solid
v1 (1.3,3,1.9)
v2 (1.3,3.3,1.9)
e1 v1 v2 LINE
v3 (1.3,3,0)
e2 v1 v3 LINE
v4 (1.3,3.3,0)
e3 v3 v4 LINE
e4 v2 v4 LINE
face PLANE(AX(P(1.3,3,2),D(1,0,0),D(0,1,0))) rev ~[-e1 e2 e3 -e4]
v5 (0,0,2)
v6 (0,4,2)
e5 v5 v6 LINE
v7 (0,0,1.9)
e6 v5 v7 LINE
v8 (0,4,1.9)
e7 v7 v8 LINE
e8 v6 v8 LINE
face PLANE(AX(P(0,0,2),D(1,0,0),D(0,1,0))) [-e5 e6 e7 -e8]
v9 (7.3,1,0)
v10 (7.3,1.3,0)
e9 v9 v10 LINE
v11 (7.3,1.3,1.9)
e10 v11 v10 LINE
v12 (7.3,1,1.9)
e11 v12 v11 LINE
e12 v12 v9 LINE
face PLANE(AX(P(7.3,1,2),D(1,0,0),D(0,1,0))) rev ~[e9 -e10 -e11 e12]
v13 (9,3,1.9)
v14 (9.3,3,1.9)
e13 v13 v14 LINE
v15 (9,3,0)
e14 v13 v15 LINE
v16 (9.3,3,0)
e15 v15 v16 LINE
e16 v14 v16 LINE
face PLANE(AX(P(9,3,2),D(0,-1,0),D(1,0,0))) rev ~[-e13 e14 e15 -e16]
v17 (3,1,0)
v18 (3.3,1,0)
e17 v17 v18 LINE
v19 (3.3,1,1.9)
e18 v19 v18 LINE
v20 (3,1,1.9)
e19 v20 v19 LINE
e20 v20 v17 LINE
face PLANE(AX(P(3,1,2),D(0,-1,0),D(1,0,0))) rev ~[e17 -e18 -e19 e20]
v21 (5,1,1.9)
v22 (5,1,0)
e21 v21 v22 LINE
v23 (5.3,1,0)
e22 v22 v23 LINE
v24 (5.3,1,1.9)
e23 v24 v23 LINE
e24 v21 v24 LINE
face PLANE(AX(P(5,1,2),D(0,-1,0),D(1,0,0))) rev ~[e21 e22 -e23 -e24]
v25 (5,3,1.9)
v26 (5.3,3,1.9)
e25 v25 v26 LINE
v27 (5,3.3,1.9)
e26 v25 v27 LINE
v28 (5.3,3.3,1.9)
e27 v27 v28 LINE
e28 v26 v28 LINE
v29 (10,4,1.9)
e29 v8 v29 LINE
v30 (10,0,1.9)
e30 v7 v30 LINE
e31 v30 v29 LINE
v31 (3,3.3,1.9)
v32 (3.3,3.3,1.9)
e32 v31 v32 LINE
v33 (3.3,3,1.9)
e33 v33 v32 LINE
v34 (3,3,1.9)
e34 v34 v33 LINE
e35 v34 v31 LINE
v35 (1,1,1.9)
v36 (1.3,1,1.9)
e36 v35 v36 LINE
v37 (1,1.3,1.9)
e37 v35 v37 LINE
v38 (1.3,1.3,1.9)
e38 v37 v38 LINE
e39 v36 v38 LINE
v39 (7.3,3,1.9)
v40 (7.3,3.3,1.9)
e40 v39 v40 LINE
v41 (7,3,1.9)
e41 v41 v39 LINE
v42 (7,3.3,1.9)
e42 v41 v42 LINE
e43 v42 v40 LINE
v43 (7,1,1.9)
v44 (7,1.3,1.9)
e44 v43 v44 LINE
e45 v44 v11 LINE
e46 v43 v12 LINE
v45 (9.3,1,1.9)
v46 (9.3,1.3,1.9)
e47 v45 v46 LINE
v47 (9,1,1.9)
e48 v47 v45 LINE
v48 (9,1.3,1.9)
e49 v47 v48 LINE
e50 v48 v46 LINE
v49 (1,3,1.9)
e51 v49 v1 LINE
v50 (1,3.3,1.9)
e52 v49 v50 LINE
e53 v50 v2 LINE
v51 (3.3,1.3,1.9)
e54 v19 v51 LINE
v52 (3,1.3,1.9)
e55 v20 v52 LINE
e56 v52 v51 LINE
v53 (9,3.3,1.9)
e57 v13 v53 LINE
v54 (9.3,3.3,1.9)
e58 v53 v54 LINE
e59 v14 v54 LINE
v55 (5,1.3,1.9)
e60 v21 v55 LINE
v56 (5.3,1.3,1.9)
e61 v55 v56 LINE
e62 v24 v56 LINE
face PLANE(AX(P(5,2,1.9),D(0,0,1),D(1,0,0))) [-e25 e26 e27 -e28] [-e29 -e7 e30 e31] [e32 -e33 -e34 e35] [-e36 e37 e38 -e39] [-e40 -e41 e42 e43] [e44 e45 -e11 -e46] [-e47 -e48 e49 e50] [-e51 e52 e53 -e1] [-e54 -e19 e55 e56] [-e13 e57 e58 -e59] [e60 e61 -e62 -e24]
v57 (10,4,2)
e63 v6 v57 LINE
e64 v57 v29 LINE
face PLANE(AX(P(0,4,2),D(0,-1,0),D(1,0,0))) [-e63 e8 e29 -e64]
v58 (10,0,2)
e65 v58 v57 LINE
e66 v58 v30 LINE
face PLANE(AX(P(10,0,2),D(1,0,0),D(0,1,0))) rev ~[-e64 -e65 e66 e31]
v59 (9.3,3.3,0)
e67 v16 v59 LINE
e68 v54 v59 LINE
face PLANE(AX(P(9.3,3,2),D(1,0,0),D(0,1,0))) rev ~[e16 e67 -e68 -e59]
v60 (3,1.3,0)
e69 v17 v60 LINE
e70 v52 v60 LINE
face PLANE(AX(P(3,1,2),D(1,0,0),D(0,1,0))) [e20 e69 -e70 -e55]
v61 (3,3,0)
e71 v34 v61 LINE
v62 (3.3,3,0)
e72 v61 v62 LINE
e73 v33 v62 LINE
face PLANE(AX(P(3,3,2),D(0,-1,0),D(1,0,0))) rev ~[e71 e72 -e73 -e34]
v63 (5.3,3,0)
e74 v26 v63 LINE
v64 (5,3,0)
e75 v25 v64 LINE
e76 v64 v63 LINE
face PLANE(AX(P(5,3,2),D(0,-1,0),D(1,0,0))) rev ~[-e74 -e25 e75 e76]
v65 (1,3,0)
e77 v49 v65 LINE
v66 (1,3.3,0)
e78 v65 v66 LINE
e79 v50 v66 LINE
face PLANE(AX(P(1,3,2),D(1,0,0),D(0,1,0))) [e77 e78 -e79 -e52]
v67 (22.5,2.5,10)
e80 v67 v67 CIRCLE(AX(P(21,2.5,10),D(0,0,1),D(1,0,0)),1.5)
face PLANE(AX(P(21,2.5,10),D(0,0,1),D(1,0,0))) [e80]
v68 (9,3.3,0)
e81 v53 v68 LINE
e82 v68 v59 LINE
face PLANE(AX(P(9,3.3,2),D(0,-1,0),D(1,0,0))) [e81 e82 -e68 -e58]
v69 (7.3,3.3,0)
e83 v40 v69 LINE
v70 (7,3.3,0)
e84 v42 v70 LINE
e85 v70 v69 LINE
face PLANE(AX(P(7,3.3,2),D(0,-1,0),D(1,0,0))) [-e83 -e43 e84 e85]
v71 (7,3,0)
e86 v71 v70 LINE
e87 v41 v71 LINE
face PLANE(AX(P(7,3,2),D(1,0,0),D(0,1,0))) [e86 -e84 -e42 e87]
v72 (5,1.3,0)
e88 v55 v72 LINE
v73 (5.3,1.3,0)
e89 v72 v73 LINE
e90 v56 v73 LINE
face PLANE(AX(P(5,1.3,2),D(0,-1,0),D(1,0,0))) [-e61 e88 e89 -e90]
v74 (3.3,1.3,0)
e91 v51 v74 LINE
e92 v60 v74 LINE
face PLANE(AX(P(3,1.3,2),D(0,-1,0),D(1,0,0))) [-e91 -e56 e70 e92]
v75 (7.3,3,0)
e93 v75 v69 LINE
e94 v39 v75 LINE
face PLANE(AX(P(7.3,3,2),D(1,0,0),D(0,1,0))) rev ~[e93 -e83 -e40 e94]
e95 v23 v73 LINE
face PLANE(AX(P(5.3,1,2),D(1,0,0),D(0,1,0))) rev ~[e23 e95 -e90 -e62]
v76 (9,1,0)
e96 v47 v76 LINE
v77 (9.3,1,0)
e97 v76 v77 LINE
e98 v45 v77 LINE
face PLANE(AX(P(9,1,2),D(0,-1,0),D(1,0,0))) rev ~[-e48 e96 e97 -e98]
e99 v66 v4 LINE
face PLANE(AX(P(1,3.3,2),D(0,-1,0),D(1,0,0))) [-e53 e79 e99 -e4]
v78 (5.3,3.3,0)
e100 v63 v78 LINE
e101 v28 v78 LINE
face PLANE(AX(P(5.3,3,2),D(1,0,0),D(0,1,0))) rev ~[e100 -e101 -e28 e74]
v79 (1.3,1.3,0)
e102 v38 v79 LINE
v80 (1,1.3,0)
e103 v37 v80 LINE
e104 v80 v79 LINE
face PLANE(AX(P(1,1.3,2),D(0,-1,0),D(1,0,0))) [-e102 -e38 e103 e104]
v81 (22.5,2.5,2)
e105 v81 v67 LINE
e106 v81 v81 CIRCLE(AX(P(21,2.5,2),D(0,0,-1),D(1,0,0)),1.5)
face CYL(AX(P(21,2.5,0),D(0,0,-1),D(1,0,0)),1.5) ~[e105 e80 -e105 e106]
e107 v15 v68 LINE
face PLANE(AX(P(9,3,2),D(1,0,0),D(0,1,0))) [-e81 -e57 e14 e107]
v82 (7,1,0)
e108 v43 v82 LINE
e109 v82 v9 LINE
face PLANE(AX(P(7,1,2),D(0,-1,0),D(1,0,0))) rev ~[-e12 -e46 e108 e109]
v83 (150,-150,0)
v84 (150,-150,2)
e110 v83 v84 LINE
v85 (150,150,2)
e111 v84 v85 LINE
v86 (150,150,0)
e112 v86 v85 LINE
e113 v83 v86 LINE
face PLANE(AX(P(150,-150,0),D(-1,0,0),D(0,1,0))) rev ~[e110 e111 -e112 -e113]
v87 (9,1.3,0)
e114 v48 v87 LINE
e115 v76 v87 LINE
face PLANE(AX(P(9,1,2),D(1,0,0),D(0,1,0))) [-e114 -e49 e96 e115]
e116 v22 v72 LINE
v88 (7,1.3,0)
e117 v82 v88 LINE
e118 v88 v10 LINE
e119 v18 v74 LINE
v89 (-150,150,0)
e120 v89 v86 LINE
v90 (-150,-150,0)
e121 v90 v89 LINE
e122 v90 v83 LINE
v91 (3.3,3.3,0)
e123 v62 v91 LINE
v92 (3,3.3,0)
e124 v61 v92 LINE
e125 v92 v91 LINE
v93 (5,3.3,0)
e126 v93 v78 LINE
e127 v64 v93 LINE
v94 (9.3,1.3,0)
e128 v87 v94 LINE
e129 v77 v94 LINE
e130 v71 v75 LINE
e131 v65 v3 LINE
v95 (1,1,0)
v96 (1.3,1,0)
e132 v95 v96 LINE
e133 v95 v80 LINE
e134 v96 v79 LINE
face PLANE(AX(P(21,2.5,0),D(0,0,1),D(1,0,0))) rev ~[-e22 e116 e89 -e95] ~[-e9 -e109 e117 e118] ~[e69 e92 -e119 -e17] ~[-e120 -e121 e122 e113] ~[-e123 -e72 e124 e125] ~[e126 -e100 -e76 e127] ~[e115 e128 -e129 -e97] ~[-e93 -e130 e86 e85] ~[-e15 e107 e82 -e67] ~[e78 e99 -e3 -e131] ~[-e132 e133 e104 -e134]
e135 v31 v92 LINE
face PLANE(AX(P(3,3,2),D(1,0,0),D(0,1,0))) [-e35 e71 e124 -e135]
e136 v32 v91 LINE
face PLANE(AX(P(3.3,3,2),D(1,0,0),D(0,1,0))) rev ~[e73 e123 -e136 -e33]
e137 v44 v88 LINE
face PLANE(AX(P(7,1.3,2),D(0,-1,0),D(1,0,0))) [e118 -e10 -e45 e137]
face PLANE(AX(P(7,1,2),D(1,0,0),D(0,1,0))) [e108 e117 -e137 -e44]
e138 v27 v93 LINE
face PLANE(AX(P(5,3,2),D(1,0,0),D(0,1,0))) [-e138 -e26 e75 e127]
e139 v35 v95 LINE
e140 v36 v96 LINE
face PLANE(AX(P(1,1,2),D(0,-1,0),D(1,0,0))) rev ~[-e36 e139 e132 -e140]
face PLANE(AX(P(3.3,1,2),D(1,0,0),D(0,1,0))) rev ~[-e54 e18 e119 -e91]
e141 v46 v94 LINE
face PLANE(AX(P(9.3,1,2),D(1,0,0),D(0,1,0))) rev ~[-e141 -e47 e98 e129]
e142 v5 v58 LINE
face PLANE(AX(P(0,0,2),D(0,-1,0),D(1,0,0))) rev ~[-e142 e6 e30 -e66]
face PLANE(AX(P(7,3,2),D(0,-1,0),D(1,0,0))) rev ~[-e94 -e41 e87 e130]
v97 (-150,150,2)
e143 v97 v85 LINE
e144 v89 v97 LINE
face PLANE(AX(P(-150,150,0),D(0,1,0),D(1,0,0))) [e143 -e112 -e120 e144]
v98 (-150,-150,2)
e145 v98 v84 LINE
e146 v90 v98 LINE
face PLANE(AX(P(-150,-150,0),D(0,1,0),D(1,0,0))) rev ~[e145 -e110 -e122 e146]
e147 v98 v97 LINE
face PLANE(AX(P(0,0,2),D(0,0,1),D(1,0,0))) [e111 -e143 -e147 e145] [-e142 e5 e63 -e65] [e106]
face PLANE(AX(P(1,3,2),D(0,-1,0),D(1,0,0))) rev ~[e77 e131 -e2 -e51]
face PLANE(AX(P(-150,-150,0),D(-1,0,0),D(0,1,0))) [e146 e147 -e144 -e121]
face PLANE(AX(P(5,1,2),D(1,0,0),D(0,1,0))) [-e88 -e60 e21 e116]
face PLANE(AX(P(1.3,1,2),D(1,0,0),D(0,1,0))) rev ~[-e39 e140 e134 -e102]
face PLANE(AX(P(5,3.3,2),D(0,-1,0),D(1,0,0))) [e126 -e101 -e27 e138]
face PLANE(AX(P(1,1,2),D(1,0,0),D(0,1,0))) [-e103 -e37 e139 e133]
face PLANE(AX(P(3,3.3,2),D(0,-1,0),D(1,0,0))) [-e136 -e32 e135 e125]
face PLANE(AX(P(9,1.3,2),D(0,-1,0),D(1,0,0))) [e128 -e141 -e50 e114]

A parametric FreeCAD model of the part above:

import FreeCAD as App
import Part
import Sketcher
Q = App.Units.Quantity


def add_polygon(sketch, points):
    """Adds a closed chain of lines whose ends are joined by coincident constraints."""
    first, n = sketch.GeometryCount, len(points)
    for a, b in zip(points, points[1:] + points[:1]):
        sketch.addGeometry(Part.LineSegment(App.Vector(*a, 0), App.Vector(*b, 0)), False)
    for i in range(n):
        sketch.addConstraint(Sketcher.Constraint("Coincident", first + i, 2, first + (i + 1) % n, 1))

doc = App.newDocument("Part")
body = doc.addObject("PartDesign::Body", "Body")

sketch1 = body.newObject("Sketcher::SketchObject", "Sketch")
sketch1.AttachmentSupport = (doc.getObject("XY_Plane"), [""])
sketch1.MapMode = "FlatFace"
add_polygon(sketch1, [(-150, 150), (-150, -150), (150, -150), (150, 150)])
sketch1.addConstraint([
    Sketcher.Constraint("Vertical", 0),
    Sketcher.Constraint("Horizontal", 1),
    Sketcher.Constraint("Vertical", 2),
    Sketcher.Constraint("Horizontal", 3),
    Sketcher.Constraint("Symmetric", 0, 2, 2, 2, -1, 1),
    Sketcher.Constraint("Equal", 3, 0),
    Sketcher.Constraint("DistanceX", 1, 1, 1, 2, Q("300 mm")),
])
pad1 = body.newObject("PartDesign::Pad", "Pad")
pad1.Profile = sketch1
pad1.Length = 2

sketch2 = body.newObject("Sketcher::SketchObject", "Sketch001")
sketch2.AttachmentSupport = (doc.getObject("XY_Plane"), [""])
sketch2.MapMode = "FlatFace"
sketch2.AttachmentOffset = App.Placement(App.Vector(0, 0, 2), App.Rotation())
add_polygon(sketch2, [(0, 4), (0, 0), (10, 0), (10, 4)])
sketch2.addConstraint([
    Sketcher.Constraint("Vertical", 0),
    Sketcher.Constraint("Horizontal", 1),
    Sketcher.Constraint("Vertical", 2),
    Sketcher.Constraint("Horizontal", 3),
    Sketcher.Constraint("Coincident", 0, 2, -1, 1),
    Sketcher.Constraint("DistanceX", 1, 1, 1, 2, Q("10 mm")),
    Sketcher.Constraint("DistanceY", 0, 2, 0, 1, Q("4 mm")),
])
pocket1 = body.newObject("PartDesign::Pocket", "Pocket")
pocket1.Profile = sketch2
pocket1.Length = 0.1

sketch3 = body.newObject("Sketcher::SketchObject", "Sketch002")
sketch3.AttachmentSupport = (doc.getObject("XY_Plane"), [""])
sketch3.MapMode = "FlatFace"
sketch3.AttachmentOffset = App.Placement(App.Vector(0, 0, 2), App.Rotation())
add_polygon(sketch3, [(1, 3.3), (1, 3), (1.3, 3), (1.3, 3.3)])
add_polygon(sketch3, [(1, 1.3), (1, 1), (1.3, 1), (1.3, 1.3)])
add_polygon(sketch3, [(3, 3.3), (3, 3), (3.3, 3), (3.3, 3.3)])
add_polygon(sketch3, [(3, 1.3), (3, 1), (3.3, 1), (3.3, 1.3)])
add_polygon(sketch3, [(5, 3.3), (5, 3), (5.3, 3), (5.3, 3.3)])
add_polygon(sketch3, [(5, 1.3), (5, 1), (5.3, 1), (5.3, 1.3)])
add_polygon(sketch3, [(7, 3.3), (7, 3), (7.3, 3), (7.3, 3.3)])
add_polygon(sketch3, [(7, 1.3), (7, 1), (7.3, 1), (7.3, 1.3)])
add_polygon(sketch3, [(9, 3.3), (9, 3), (9.3, 3), (9.3, 3.3)])
add_polygon(sketch3, [(9, 1.3), (9, 1), (9.3, 1), (9.3, 1.3)])
sketch3.addConstraint([
    Sketcher.Constraint("Vertical", 0),
    Sketcher.Constraint("Horizontal", 1),
    Sketcher.Constraint("Vertical", 2),
    Sketcher.Constraint("Horizontal", 3),
    Sketcher.Constraint("Vertical", 4),
    Sketcher.Constraint("Horizontal", 5),
    Sketcher.Constraint("Vertical", 6),
    Sketcher.Constraint("Horizontal", 7),
    Sketcher.Constraint("Vertical", 8),
    Sketcher.Constraint("Horizontal", 9),
    Sketcher.Constraint("Vertical", 10),
    Sketcher.Constraint("Horizontal", 11),
    Sketcher.Constraint("Vertical", 12),
    Sketcher.Constraint("Horizontal", 13),
    Sketcher.Constraint("Vertical", 14),
    Sketcher.Constraint("Horizontal", 15),
    Sketcher.Constraint("Vertical", 16),
    Sketcher.Constraint("Horizontal", 17),
    Sketcher.Constraint("Vertical", 18),
    Sketcher.Constraint("Horizontal", 19),
    Sketcher.Constraint("Vertical", 20),
    Sketcher.Constraint("Horizontal", 21),
    Sketcher.Constraint("Vertical", 22),
    Sketcher.Constraint("Horizontal", 23),
    Sketcher.Constraint("Vertical", 24),
    Sketcher.Constraint("Horizontal", 25),
    Sketcher.Constraint("Vertical", 26),
    Sketcher.Constraint("Horizontal", 27),
    Sketcher.Constraint("Vertical", 28),
    Sketcher.Constraint("Horizontal", 29),
    Sketcher.Constraint("Vertical", 30),
    Sketcher.Constraint("Horizontal", 31),
    Sketcher.Constraint("Vertical", 32),
    Sketcher.Constraint("Horizontal", 33),
    Sketcher.Constraint("Vertical", 34),
    Sketcher.Constraint("Horizontal", 35),
    Sketcher.Constraint("Vertical", 36),
    Sketcher.Constraint("Horizontal", 37),
    Sketcher.Constraint("Vertical", 38),
    Sketcher.Constraint("Horizontal", 39),
    Sketcher.Constraint("Horizontal", 1, 2, 8, 2),
    Sketcher.Constraint("Horizontal", 3, 2, 10, 2),
    Sketcher.Constraint("Horizontal", 5, 2, 12, 2),
    Sketcher.Constraint("Horizontal", 7, 2, 14, 2),
    Sketcher.Constraint("Horizontal", 9, 2, 16, 2),
    Sketcher.Constraint("Horizontal", 11, 2, 18, 2),
    Sketcher.Constraint("Horizontal", 13, 2, 20, 2),
    Sketcher.Constraint("Horizontal", 15, 2, 22, 2),
    Sketcher.Constraint("Horizontal", 17, 2, 24, 2),
    Sketcher.Constraint("Horizontal", 19, 2, 26, 2),
    Sketcher.Constraint("Horizontal", 21, 2, 28, 2),
    Sketcher.Constraint("Horizontal", 23, 2, 30, 2),
    Sketcher.Constraint("Horizontal", 25, 2, 32, 2),
    Sketcher.Constraint("Horizontal", 27, 2, 34, 2),
    Sketcher.Constraint("Horizontal", 29, 2, 36, 2),
    Sketcher.Constraint("Horizontal", 31, 2, 38, 2),
    Sketcher.Constraint("Vertical", 3, 2, 4, 2),
    Sketcher.Constraint("Vertical", 2, 2, 5, 2),
    Sketcher.Constraint("Vertical", 11, 2, 12, 2),
    Sketcher.Constraint("Vertical", 10, 2, 13, 2),
    Sketcher.Constraint("Vertical", 19, 2, 20, 2),
    Sketcher.Constraint("Vertical", 18, 2, 21, 2),
    Sketcher.Constraint("Vertical", 27, 2, 28, 2),
    Sketcher.Constraint("Vertical", 26, 2, 29, 2),
    Sketcher.Constraint("Vertical", 35, 2, 36, 2),
    Sketcher.Constraint("Vertical", 34, 2, 37, 2),
    Sketcher.Constraint("Equal", 7, 9),
    Sketcher.Constraint("Equal", 15, 17),
    Sketcher.Constraint("Equal", 23, 25),
    Sketcher.Constraint("Equal", 31, 33),
    Sketcher.Constraint("Equal", 39, 0),
    Sketcher.Constraint("Equal", 2, 4),
    Sketcher.Constraint("DistanceX", 1, 1, 1, 2, Q("0.3 mm")),
    Sketcher.Constraint("DistanceX", -1, 1, 0, 2, Q("1 mm")),
    Sketcher.Constraint("DistanceY", -1, 1, 0, 2, Q("3 mm")),
    Sketcher.Constraint("DistanceY", -1, 1, 4, 2, Q("1 mm")),
    Sketcher.Constraint("DistanceX", -1, 1, 8, 2, Q("3 mm")),
    Sketcher.Constraint("DistanceX", -1, 1, 16, 2, Q("5 mm")),
    Sketcher.Constraint("DistanceX", -1, 1, 24, 2, Q("7 mm")),
    Sketcher.Constraint("DistanceX", -1, 1, 32, 2, Q("9 mm")),
])
pocket2 = body.newObject("PartDesign::Pocket", "Pocket001")
pocket2.Profile = sketch3
pocket2.Length = 3

sketch4 = body.newObject("Sketcher::SketchObject", "Sketch003")
sketch4.AttachmentSupport = (doc.getObject("XY_Plane"), [""])
sketch4.MapMode = "FlatFace"
sketch4.addGeometry(Part.Circle(App.Vector(21, 2.5, 0), App.Vector(0, 0, 1), 1.5), False)
sketch4.addConstraint([
    Sketcher.Constraint("Diameter", 0, Q("3 mm")),
    Sketcher.Constraint("DistanceX", -1, 1, 0, 3, Q("21 mm")),
    Sketcher.Constraint("DistanceY", -1, 1, 0, 3, Q("2.5 mm")),
])
pad2 = body.newObject("PartDesign::Pad", "Pad001")
pad2.Profile = sketch4
pad2.Length = 10

doc.recompute()
